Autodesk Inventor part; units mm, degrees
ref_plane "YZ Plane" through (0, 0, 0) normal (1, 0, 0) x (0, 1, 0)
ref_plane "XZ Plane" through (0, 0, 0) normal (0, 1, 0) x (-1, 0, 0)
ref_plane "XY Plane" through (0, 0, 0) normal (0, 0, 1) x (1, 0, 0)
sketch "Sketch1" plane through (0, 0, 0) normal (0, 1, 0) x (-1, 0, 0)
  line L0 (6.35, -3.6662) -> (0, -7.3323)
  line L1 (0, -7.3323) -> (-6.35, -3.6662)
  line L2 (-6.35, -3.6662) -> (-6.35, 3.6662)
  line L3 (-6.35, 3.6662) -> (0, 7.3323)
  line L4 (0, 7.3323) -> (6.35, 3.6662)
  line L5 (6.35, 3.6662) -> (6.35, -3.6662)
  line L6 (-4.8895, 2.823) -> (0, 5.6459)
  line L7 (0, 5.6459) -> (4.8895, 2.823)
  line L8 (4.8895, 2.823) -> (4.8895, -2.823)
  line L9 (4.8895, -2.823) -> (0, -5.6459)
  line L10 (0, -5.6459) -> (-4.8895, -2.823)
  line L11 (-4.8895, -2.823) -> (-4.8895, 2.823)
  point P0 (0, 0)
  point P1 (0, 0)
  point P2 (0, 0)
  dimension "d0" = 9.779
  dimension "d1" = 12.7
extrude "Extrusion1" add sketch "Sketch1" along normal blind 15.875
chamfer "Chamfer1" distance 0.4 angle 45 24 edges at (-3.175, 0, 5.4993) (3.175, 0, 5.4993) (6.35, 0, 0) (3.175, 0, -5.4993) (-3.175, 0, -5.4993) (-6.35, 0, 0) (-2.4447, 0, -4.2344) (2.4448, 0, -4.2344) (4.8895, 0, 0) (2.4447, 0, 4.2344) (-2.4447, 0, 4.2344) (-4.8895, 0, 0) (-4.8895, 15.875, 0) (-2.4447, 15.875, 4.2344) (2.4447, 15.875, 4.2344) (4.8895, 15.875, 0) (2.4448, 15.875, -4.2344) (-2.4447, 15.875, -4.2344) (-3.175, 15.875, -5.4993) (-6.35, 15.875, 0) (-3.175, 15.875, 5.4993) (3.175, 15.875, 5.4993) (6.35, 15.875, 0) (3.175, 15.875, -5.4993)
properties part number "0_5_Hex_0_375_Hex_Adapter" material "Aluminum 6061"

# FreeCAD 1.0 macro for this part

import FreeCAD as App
import Part
import Sketcher
from FreeCAD import Vector
Q = App.Units.Quantity


def edges_at(feature, points):
    """Names of the edges that pass closest to the given points."""
    edges = feature.Shape.Edges
    near = lambda p: min(range(len(edges)), key=lambda i: edges[i].distToShape(Part.Vertex(*p))[0])
    return sorted({f"Edge{near(p) + 1}" for p in points})

doc = App.newDocument("Part")
body = doc.addObject("PartDesign::Body", "Body")

# Sketch on XZ plane
sketch1 = body.newObject("Sketcher::SketchObject", "Sketch")
sketch1.AttachmentSupport = (doc.getObject("XZ_Plane"), [""])
sketch1.MapMode = "FlatFace"
sketch1.addGeometry([
    Part.LineSegment(Vector(0, -7.3323, 0), Vector(-6.35, -3.6662, 0)),  # 0
    Part.LineSegment(Vector(-6.35, -3.6662, 0), Vector(-6.35, 3.6662, 0)),  # 1
    Part.LineSegment(Vector(-6.35, 3.6662, 0), Vector(0, 7.3323, 0)),  # 2
    Part.LineSegment(Vector(0, 7.3323, 0), Vector(6.35, 3.6662, 0)),  # 3
    Part.LineSegment(Vector(6.35, 3.6662, 0), Vector(6.35, -3.6662, 0)),  # 4
    Part.LineSegment(Vector(6.35, -3.6662, 0), Vector(0, -7.3323, 0)),  # 5
    Part.LineSegment(Vector(4.8895, -2.823, 0), Vector(4.8895, 2.823, 0)),  # 6
    Part.LineSegment(Vector(4.8895, 2.823, 0), Vector(0, 5.6459, 0)),  # 7
    Part.LineSegment(Vector(0, 5.6459, 0), Vector(-4.8895, 2.823, 0)),  # 8
    Part.LineSegment(Vector(-4.8895, 2.823, 0), Vector(-4.8895, -2.823, 0)),  # 9
    Part.LineSegment(Vector(-4.8895, -2.823, 0), Vector(0, -5.6459, 0)),  # 10
    Part.LineSegment(Vector(0, -5.6459, 0), Vector(4.8895, -2.823, 0)),  # 11
], False)
sketch1.addConstraint([
    Sketcher.Constraint("Coincident", 0, 2, 1, 1),
    Sketcher.Constraint("Coincident", 1, 2, 2, 1),
    Sketcher.Constraint("Coincident", 2, 2, 3, 1),
    Sketcher.Constraint("Coincident", 3, 2, 4, 1),
    Sketcher.Constraint("Coincident", 4, 2, 5, 1),
    Sketcher.Constraint("Coincident", 5, 2, 0, 1),
    Sketcher.Constraint("Coincident", 6, 2, 7, 1),
    Sketcher.Constraint("Coincident", 7, 2, 8, 1),
    Sketcher.Constraint("Coincident", 8, 2, 9, 1),
    Sketcher.Constraint("Coincident", 9, 2, 10, 1),
    Sketcher.Constraint("Coincident", 10, 2, 11, 1),
    Sketcher.Constraint("Coincident", 11, 2, 6, 1),
    Sketcher.Constraint("Vertical", 1),
    Sketcher.Constraint("Vertical", 4),
    Sketcher.Constraint("Vertical", 6),
    Sketcher.Constraint("Vertical", 9),
    Sketcher.Constraint("Symmetric", 0, 2, 3, 2, -1, 1),
    Sketcher.Constraint("Symmetric", 2, 2, 5, 2, -1, 1),
    Sketcher.Constraint("Symmetric", 6, 2, 9, 2, -1, 1),
    Sketcher.Constraint("Symmetric", 7, 2, 10, 2, -1, 1),
    Sketcher.Constraint("PointOnObject", 2, 2, -2),
    Sketcher.Constraint("PointOnObject", 7, 2, -2),
    Sketcher.Constraint("Parallel", 2, 5),
    Sketcher.Constraint("Parallel", 3, 7),
    Sketcher.Constraint("Parallel", 5, 8),
    Sketcher.Constraint("Parallel", 8, 11),
    Sketcher.Constraint("Horizontal", 1, 2, 3, 2),
    Sketcher.Constraint("DistanceX", 1, 2, 3, 2, Q("12.7 mm")),
    Sketcher.Constraint("Angle", 0, Q("150.0005 deg")),
    Sketcher.Constraint("DistanceX", 8, 2, 6, 2, Q("9.779 mm")),
    Sketcher.Constraint("DistanceY", 6, 1, 6, 2, Q("5.646 mm")),
    Sketcher.Constraint("DistanceY", 1, 1, 1, 2, Q("7.3324 mm")),
])
pad1 = body.newObject("PartDesign::Pad", "Pad")
pad1.Profile = sketch1
pad1.Length = 15.875
pad1.Reversed = True
doc.recompute()

chamfer = body.newObject("PartDesign::Chamfer", "Chamfer")
chamfer.Base = (pad1, edges_at(pad1, [
    (-3.175, 0, 5.499),
    (3.175, 0, 5.499),
    (6.35, 0, 0),
    (3.175, 0, -5.499),
    (-3.175, 0, -5.499),
    (-6.35, 0, 0),
    (-2.445, 0, -4.234),
    (2.445, 0, -4.234),
    (4.889, 0, 0),
    (2.445, 0, 4.234),
    (-2.445, 0, 4.234),
    (-4.889, 0, 0),
    (-4.889, 15.875, 0),
    (-2.445, 15.875, 4.234),
    (2.445, 15.875, 4.234),
    (4.889, 15.875, 0),
    (2.445, 15.875, -4.234),
    (-2.445, 15.875, -4.234),
    (-3.175, 15.875, -5.499),
    (-6.35, 15.875, 0),
    (-3.175, 15.875, 5.499),
    (3.175, 15.875, 5.499),
    (6.35, 15.875, 0),
    (3.175, 15.875, -5.499),
]))
chamfer.Size = 0.4

doc.recompute()
